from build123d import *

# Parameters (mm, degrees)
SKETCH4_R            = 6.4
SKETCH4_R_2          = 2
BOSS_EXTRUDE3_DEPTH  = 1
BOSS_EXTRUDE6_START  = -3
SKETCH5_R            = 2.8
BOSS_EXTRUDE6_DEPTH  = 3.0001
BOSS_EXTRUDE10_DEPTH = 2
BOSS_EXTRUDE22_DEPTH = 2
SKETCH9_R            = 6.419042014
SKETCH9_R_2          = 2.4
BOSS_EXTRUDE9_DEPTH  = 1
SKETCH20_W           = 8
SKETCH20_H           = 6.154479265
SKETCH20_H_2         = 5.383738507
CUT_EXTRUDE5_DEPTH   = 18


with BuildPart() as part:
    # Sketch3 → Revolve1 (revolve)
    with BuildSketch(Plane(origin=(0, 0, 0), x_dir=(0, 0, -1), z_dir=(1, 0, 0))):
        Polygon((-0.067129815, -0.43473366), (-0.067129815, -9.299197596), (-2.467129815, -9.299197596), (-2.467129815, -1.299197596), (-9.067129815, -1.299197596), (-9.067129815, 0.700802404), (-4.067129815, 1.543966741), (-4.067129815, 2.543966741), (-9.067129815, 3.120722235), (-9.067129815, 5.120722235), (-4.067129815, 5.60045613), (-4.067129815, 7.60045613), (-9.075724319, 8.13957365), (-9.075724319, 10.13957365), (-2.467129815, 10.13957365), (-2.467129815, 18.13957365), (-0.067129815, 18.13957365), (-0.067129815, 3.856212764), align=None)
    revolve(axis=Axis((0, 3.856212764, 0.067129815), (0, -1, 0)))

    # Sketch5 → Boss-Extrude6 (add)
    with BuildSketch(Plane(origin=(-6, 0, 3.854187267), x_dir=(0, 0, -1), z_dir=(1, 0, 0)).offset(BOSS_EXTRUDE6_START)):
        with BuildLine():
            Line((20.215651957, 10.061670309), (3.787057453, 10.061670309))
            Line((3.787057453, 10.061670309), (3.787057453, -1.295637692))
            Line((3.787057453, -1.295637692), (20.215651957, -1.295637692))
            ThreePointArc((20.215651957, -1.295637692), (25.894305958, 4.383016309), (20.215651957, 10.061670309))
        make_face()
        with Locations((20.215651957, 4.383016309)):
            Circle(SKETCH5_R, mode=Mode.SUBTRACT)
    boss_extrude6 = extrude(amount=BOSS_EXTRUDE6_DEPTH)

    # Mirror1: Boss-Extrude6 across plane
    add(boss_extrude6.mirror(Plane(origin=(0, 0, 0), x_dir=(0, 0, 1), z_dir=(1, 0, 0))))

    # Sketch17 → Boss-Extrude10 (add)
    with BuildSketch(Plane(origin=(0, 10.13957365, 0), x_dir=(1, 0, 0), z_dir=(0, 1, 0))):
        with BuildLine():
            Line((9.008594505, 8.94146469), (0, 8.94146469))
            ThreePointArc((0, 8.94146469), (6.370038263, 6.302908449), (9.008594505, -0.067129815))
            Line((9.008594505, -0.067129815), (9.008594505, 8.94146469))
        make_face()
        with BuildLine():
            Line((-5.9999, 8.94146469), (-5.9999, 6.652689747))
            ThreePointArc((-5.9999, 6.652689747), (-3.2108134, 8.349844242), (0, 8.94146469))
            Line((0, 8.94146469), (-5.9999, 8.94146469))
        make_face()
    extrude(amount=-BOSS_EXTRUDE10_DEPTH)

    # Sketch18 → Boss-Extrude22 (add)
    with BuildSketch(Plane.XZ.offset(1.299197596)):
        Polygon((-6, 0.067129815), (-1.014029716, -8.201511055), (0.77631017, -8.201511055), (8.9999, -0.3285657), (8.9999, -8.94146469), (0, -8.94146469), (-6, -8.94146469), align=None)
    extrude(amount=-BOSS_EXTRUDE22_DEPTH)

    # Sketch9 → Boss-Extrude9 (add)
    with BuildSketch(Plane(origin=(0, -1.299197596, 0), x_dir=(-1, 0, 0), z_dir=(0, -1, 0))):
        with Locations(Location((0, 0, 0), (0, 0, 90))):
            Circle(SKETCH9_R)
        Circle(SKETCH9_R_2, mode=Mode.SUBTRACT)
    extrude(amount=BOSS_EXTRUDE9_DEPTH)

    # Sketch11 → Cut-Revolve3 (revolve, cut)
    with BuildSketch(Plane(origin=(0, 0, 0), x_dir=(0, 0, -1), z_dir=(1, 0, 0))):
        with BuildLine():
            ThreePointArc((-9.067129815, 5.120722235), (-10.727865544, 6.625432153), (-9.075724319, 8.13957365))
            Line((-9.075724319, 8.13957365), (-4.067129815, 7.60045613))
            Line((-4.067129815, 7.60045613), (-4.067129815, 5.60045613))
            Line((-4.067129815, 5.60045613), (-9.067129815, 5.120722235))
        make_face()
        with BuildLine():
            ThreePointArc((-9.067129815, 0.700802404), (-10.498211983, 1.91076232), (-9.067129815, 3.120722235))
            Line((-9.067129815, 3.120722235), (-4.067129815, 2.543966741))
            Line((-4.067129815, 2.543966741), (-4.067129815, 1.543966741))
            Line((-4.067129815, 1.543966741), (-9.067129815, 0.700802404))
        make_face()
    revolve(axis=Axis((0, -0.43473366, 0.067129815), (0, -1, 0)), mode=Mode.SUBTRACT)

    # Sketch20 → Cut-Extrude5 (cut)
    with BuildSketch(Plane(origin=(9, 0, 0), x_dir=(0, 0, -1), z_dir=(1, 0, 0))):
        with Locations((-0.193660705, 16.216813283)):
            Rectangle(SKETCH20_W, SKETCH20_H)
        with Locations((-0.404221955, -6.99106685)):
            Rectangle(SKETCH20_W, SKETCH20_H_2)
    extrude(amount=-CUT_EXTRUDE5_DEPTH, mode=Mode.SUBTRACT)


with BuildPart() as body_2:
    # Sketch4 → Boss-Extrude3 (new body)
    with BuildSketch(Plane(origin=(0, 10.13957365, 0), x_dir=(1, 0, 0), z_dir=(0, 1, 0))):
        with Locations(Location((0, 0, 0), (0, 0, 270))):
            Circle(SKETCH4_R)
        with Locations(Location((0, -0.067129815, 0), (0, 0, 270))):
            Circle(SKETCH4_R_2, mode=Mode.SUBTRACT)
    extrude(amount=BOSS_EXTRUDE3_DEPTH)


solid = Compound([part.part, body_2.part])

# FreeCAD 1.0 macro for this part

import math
import FreeCAD as App
import Part
import Sketcher

V = App.Vector


def add_polygon(sketch, points):
    """Adds a closed chain of lines whose ends are joined by coincident constraints."""
    first, n = sketch.GeometryCount, len(points)
    for a, b in zip(points, points[1:] + points[:1]):
        sketch.addGeometry(Part.LineSegment(App.Vector(*a, 0), App.Vector(*b, 0)), False)
    for i in range(n):
        sketch.addConstraint(Sketcher.Constraint("Coincident", first + i, 2, first + (i + 1) % n, 1))

doc = App.newDocument("Part")
body = doc.addObject("PartDesign::Body", "Body")

# Sketch on YZ plane
sketch1 = body.newObject("Sketcher::SketchObject", "Sketch")
sketch1.AttachmentSupport = (doc.getObject("YZ_Plane"), [""])
sketch1.MapMode = "FlatFace"
add_polygon(sketch1, [(-9.3, 0.1), (18.1, 0.1), (18.1, 2.5), (10.1, 2.5), (10.1, 9.1), (8.1, 9.1), (7.6, 4.1), (5.6, 4.1), (5.1, 9.1), (3.1, 9.1), (2.5, 4.1), (1.5, 4.1), (0.7, 9.1), (-1.3, 9.1), (-1.3, 2.5), (-9.3, 2.5)])  # lines 0-15
sketch1.addGeometry(Part.LineSegment(V(18.1, 0.1, 0), V(-9.3, 0.1, 0)), True)  # axis
sketch1.addConstraint([
    Sketcher.Constraint("Horizontal", 0),
    Sketcher.Constraint("Vertical", 1),
    Sketcher.Constraint("Horizontal", 2),
    Sketcher.Constraint("Vertical", 3),
    Sketcher.Constraint("Horizontal", 4),
    Sketcher.Constraint("Horizontal", 6),
    Sketcher.Constraint("Horizontal", 8),
    Sketcher.Constraint("Horizontal", 10),
    Sketcher.Constraint("Horizontal", 12),
    Sketcher.Constraint("Vertical", 13),
    Sketcher.Constraint("Horizontal", 14),
    Sketcher.Constraint("Vertical", 15),
    Sketcher.Constraint("Horizontal", 16),
    Sketcher.Constraint("Coincident", 16, 1, 0, 2),
    Sketcher.Constraint("Horizontal", 6, 2, 9, 2),
    Sketcher.Constraint("Horizontal", 8, 2, 11, 2),
    Sketcher.Constraint("Horizontal", 2, 2, 13, 2),
    Sketcher.Constraint("Vertical", 14, 2, 16, 2),
    Sketcher.Constraint("Equal", 4, 6),
    Sketcher.Constraint("Equal", 6, 8),
    Sketcher.Constraint("Equal", 8, 12),
    Sketcher.Constraint("Equal", 2, 14),
    Sketcher.Constraint("DistanceX", 2, 2, 2, 1, 8.0),
    Sketcher.Constraint("DistanceX", 4, 2, 4, 1, 2.0),
    Sketcher.Constraint("DistanceX", 10, 2, 10, 1, 1.0),
    Sketcher.Constraint("DistanceY", 1, 1, 1, 2, 2.4),
    Sketcher.Constraint("DistanceY", 13, 2, 13, 1, 6.6),
    Sketcher.Constraint("DistanceY", 0, 2, 5, 2, 4.0),
    Sketcher.Constraint("DistanceX", 0, 1, 0, 2, 27.438771),
    Sketcher.Constraint("Distance", 7, 5.022962),
    Sketcher.Constraint("DistanceY", 3, 1, 3, 2, 6.608595),
    Sketcher.Constraint("DistanceY", -1, 1, 0, 2, 0.06713),
    Sketcher.Constraint("DistanceX", 7, 2, 4, 2, 3.018851),
    Sketcher.Constraint("DistanceX", 9, 2, 6, 2, 3.056489),
    Sketcher.Constraint("DistanceX", -1, 1, 0, 2, 18.139574),
])
revolution = body.newObject("PartDesign::Revolution", "Revolution")
revolution.Profile = sketch1
revolution.ReferenceAxis = (sketch1, ["Axis0"])
revolution.Angle = 360

# Sketch on YZ plane
sketch2 = body.newObject("Sketcher::SketchObject", "Sketch001")
sketch2.AttachmentSupport = (doc.getObject("YZ_Plane"), [""])
sketch2.MapMode = "FlatFace"
sketch2.AttachmentOffset = App.Placement(V(0, 0, -9), App.Rotation())
sketch2.addGeometry([
    Part.LineSegment(V(10.1, -16.4, 0), V(10.1, 0.1, 0)),  # 0
    Part.LineSegment(V(10.1, 0.1, 0), V(-1.3, 0.1, 0)),  # 1
    Part.LineSegment(V(-1.3, 0.1, 0), V(-1.3, -16.4, 0)),  # 2
    Part.ArcOfCircle(Part.Circle(V(4.4, -16.4, 0), V(0, 0, 1), 5.7), math.radians(180), math.radians(360)),  # 3
    Part.Circle(V(4.4, -16.4, 0), V(0, 0, 1), 2.8),  # 4
], False)
sketch2.addConstraint([
    Sketcher.Constraint("Coincident", 0, 2, 1, 1),
    Sketcher.Constraint("Coincident", 1, 2, 2, 1),
    Sketcher.Constraint("Tangent", 2, 2, 3, 1),
    Sketcher.Constraint("Tangent", 3, 2, 0, 1),
    Sketcher.Constraint("Vertical", 0),
    Sketcher.Constraint("Horizontal", 1),
    Sketcher.Constraint("Vertical", 2),
    Sketcher.Constraint("Coincident", 4, 3, 3, 3),
    Sketcher.Constraint("Diameter", 4, 5.6),
    Sketcher.Constraint("Radius", 3, 5.678654),
    Sketcher.Constraint("DistanceY", 0, 1, 0, 2, 16.428595),
    Sketcher.Constraint("DistanceX", -1, 1, 0, 2, 10.06167),
    Sketcher.Constraint("DistanceY", -1, 1, 0, 2, 0.06713),
])
pad1 = body.newObject("PartDesign::Pad", "Pad")
pad1.Profile = sketch2
pad1.Length = 3.0001
doc.recompute()

mirrored = body.newObject("PartDesign::Mirrored", "Mirrored")
mirrored.Originals = [pad1]
mirrored.MirrorPlane = (doc.getObject("YZ_Plane"), [""])
body.Tip = mirrored

# Sketch on XZ plane
sketch3 = body.newObject("Sketcher::SketchObject", "Sketch002")
sketch3.AttachmentSupport = (doc.getObject("XZ_Plane"), [""])
sketch3.MapMode = "FlatFace"
sketch3.AttachmentOffset = App.Placement(V(0, 0, -10.139574), App.Rotation())
sketch3.addGeometry([
    Part.LineSegment(V(9, -8.9, 0), V(0, -8.9, 0)),  # 0
    Part.ArcOfCircle(Part.Circle(V(0, 0.1, 0), V(0, 0, 1), 9), math.radians(-90), math.radians(0)),  # 1
    Part.LineSegment(V(9, 0.1, 0), V(9, -8.9, 0)),  # 2
    Part.LineSegment(V(-6, -8.9, 0), V(-6, -6.7, 0)),  # 3
    Part.ArcOfCircle(Part.Circle(V(0, 0.1, 0), V(0, 0, 1), 9), math.radians(-132), math.radians(-90)),  # 4
    Part.LineSegment(V(0, -8.9, 0), V(-6, -8.9, 0)),  # 5
], False)
sketch3.addConstraint([
    Sketcher.Constraint("Tangent", 0, 2, 1, 1),
    Sketcher.Constraint("Tangent", 1, 2, 2, 1),
    Sketcher.Constraint("Coincident", 2, 2, 0, 1),
    Sketcher.Constraint("Coincident", 3, 2, 4, 1),
    Sketcher.Constraint("Tangent", 4, 2, 5, 1),
    Sketcher.Constraint("Coincident", 5, 2, 3, 1),
    Sketcher.Constraint("Horizontal", 0),
    Sketcher.Constraint("Vertical", 2),
    Sketcher.Constraint("Vertical", 3),
    Sketcher.Constraint("Horizontal", 5),
    Sketcher.Constraint("Coincident", 4, 3, 1, 3),
    Sketcher.Constraint("Equal", 1, 4),
    Sketcher.Constraint("PointOnObject", 1, 3, -2),
    Sketcher.Constraint("DistanceX", 5, 2, 5, 1, 5.9999),
    Sketcher.Constraint("Radius", 1, 9.008595),
    Sketcher.Constraint("DistanceY", -1, 1, 1, 3, 0.06713),
])
pad2 = body.newObject("PartDesign::Pad", "Pad001")
pad2.Profile = sketch3
pad2.Length = 2

# Sketch on XZ plane
sketch4 = body.newObject("Sketcher::SketchObject", "Sketch003")
sketch4.AttachmentSupport = (doc.getObject("XZ_Plane"), [""])
sketch4.MapMode = "FlatFace"
sketch4.AttachmentOffset = App.Placement(V(0, 0, 1.299198), App.Rotation())
add_polygon(sketch4, [(-1, -8.2), (-6, 0.1), (-6, -8.9), (9, -8.9), (9, -0.3), (0.8, -8.2)])  # lines 0-5
sketch4.addConstraint([
    Sketcher.Constraint("Vertical", 1),
    Sketcher.Constraint("Horizontal", 2),
    Sketcher.Constraint("Vertical", 3),
    Sketcher.Constraint("Horizontal", 5),
    Sketcher.Constraint("DistanceX", 0, 2, -1, 1, 6.0),
    Sketcher.Constraint("DistanceX", 2, 1, 2, 2, 14.9999),
    Sketcher.Constraint("DistanceY", 3, 1, 3, 2, 8.612899),
    Sketcher.Constraint("DistanceX", 5, 2, 5, 1, 1.79034),
    Sketcher.Constraint("Distance", 4, 11.384669),
    Sketcher.Constraint("DistanceY", 1, 2, 1, 1, 9.008595),
    Sketcher.Constraint("DistanceY", -1, 1, 0, 2, 0.06713),
    Sketcher.Constraint("DistanceX", -1, 1, 4, 2, 0.77631),
])
pad3 = body.newObject("PartDesign::Pad", "Pad002")
pad3.Profile = sketch4
pad3.Length = 2
pad3.Reversed = True

# Sketch on XZ plane
sketch5 = body.newObject("Sketcher::SketchObject", "Sketch004")
sketch5.AttachmentSupport = (doc.getObject("XZ_Plane"), [""])
sketch5.MapMode = "FlatFace"
sketch5.AttachmentOffset = App.Placement(V(0, 0, 1.299198), App.Rotation())
sketch5.addGeometry([
    Part.Circle(V(0, 0, 0), V(0, 0, 1), 6.4),
    Part.Circle(V(0, 0, 0), V(0, 0, 1), 2.4),
], False)
sketch5.addConstraint([
    Sketcher.Constraint("Coincident", 0, 3, -1, 1),
    Sketcher.Constraint("Coincident", 1, 3, -1, 1),
    Sketcher.Constraint("Diameter", 1, 4.8),
    Sketcher.Constraint("Diameter", 0, 12.838084),
])
pad4 = body.newObject("PartDesign::Pad", "Pad003")
pad4.Profile = sketch5
pad4.Length = 1

# Sketch on YZ plane
sketch6 = body.newObject("Sketcher::SketchObject", "Sketch005")
sketch6.AttachmentSupport = (doc.getObject("YZ_Plane"), [""])
sketch6.MapMode = "FlatFace"
sketch6.addGeometry([
    Part.ArcOfCircle(Part.Circle(V(6.6, 9.2, 0), V(0, 0, 1), 1.5), math.radians(-5), math.radians(185)),  # 0
    Part.LineSegment(V(5.1, 9.1, 0), V(5.6, 4.1, 0)),  # 1
    Part.LineSegment(V(5.6, 4.1, 0), V(7.6, 4.1, 0)),  # 2
    Part.LineSegment(V(7.6, 4.1, 0), V(8.1, 9.1, 0)),  # 3
    Part.ArcOfCircle(Part.Circle(V(1.9, 9.3, 0), V(0, 0, 1), 1.2), math.radians(-10), math.radians(190)),  # 4
    Part.LineSegment(V(0.7, 9.1, 0), V(1.5, 4.1, 0)),  # 5
    Part.LineSegment(V(1.5, 4.1, 0), V(2.5, 4.1, 0)),  # 6
    Part.LineSegment(V(2.5, 4.1, 0), V(3.1, 9.1, 0)),  # 7
], False)
sketch6.addGeometry(Part.LineSegment(V(8.1, 0.1, 0), V(0.7, 0.1, 0)), True)  # axis
sketch6.addConstraint([
    Sketcher.Constraint("Tangent", 0, 2, 1, 1),
    Sketcher.Constraint("Coincident", 1, 2, 2, 1),
    Sketcher.Constraint("Coincident", 2, 2, 3, 1),
    Sketcher.Constraint("Coincident", 3, 2, 0, 1),
    Sketcher.Constraint("Tangent", 4, 2, 5, 1),
    Sketcher.Constraint("Coincident", 5, 2, 6, 1),
    Sketcher.Constraint("Coincident", 6, 2, 7, 1),
    Sketcher.Constraint("Coincident", 7, 2, 4, 1),
    Sketcher.Constraint("Horizontal", 2),
    Sketcher.Constraint("Horizontal", 6),
    Sketcher.Constraint("Horizontal", 8),
    Sketcher.Constraint("Horizontal", 0, 2, 4, 2),
    Sketcher.Constraint("Horizontal", 2, 2, 5, 2),
    Sketcher.Constraint("Horizontal", 4, 2, 7, 2),
    Sketcher.Constraint("Vertical", 3, 2, 8, 1),
    Sketcher.Constraint("Vertical", 4, 2, 8, 2),
    Sketcher.Constraint("DistanceX", 2, 1, 2, 2, 2.0),
    Sketcher.Constraint("DistanceX", 6, 1, 6, 2, 1.0),
    Sketcher.Constraint("DistanceY", 1, 2, 0, 2, 5.0),
    Sketcher.Constraint("DistanceX", 7, 2, 0, 2, 2.0),
    Sketcher.Constraint("DistanceY", 8, 1, 2, 2, 4.0),
    Sketcher.Constraint("Radius", 0, 1.515956),
    Sketcher.Constraint("Radius", 4, 1.227043),
    Sketcher.Constraint("DistanceX", 8, 2, 8, 1, 7.438771),
    Sketcher.Constraint("Distance", 1, 5.022962),
    Sketcher.Constraint("DistanceY", -1, 1, 4, 3, 9.271169),
    Sketcher.Constraint("DistanceY", -1, 1, 0, 2, 9.06713),
    Sketcher.Constraint("DistanceX", -1, 1, 0, 3, 6.629748),
])
groove = body.newObject("PartDesign::Groove", "Groove")
groove.Profile = sketch6
groove.ReferenceAxis = (sketch6, ["Axis0"])
groove.Angle = 360

# Sketch on YZ plane
sketch7 = body.newObject("Sketcher::SketchObject", "Sketch006")
sketch7.AttachmentSupport = (doc.getObject("YZ_Plane"), [""])
sketch7.MapMode = "FlatFace"
sketch7.AttachmentOffset = App.Placement(V(0, 0, 9), App.Rotation())
add_polygon(sketch7, [(19, 4), (13, 4), (13, -4), (19, -4)])  # lines 0-3
add_polygon(sketch7, [(-4, 4), (-10, 4), (-10, -4), (-4, -4)])  # lines 4-7
sketch7.addConstraint([
    Sketcher.Constraint("Horizontal", 0),
    Sketcher.Constraint("Vertical", 1),
    Sketcher.Constraint("Horizontal", 2),
    Sketcher.Constraint("Vertical", 3),
    Sketcher.Constraint("Horizontal", 4),
    Sketcher.Constraint("Vertical", 5),
    Sketcher.Constraint("Horizontal", 6),
    Sketcher.Constraint("Vertical", 7),
    Sketcher.Constraint("Equal", 3, 5),
    Sketcher.Constraint("DistanceY", 1, 2, 1, 1, 8.0),
    Sketcher.Constraint("DistanceX", 0, 2, 0, 1, 6.154479),
    Sketcher.Constraint("DistanceX", 4, 2, 4, 1, 5.383739),
    Sketcher.Constraint("DistanceY", -1, 1, 0, 2, 4.193661),
    Sketcher.Constraint("DistanceY", -1, 1, 4, 2, 4.404222),
    Sketcher.Constraint("DistanceX", 4, 2, 0, 2, 22.82251),
    Sketcher.Constraint("DistanceX", -1, 1, 0, 2, 13.139574),
])
pocket1 = body.newObject("PartDesign::Pocket", "Pocket")
pocket1.Profile = sketch7
pocket1.Length = 18
body2 = doc.addObject("PartDesign::Body", "Body001")

# Sketch on XZ plane
sketch8 = body2.newObject("Sketcher::SketchObject", "Sketch007")
sketch8.AttachmentSupport = (doc.getObject("XZ_Plane001"), [""])
sketch8.MapMode = "FlatFace"
sketch8.AttachmentOffset = App.Placement(V(0, 0, -10.139574), App.Rotation())
sketch8.addGeometry([
    Part.Circle(V(0, 0, 0), V(0, 0, 1), 6.4),
    Part.Circle(V(0, 0.1, 0), V(0, 0, 1), 2),
], False)
sketch8.addConstraint([
    Sketcher.Constraint("Coincident", 0, 3, -1, 1),
    Sketcher.Constraint("PointOnObject", 1, 3, -2),
    Sketcher.Constraint("Diameter", 1, 4.0),
    Sketcher.Constraint("Diameter", 0, 12.8),
    Sketcher.Constraint("DistanceY", -1, 1, 1, 3, 0.06713),
])
pad5 = body2.newObject("PartDesign::Pad", "Pad004")
pad5.Profile = sketch8
pad5.Length = 1
pad5.Reversed = True

doc.recompute()
